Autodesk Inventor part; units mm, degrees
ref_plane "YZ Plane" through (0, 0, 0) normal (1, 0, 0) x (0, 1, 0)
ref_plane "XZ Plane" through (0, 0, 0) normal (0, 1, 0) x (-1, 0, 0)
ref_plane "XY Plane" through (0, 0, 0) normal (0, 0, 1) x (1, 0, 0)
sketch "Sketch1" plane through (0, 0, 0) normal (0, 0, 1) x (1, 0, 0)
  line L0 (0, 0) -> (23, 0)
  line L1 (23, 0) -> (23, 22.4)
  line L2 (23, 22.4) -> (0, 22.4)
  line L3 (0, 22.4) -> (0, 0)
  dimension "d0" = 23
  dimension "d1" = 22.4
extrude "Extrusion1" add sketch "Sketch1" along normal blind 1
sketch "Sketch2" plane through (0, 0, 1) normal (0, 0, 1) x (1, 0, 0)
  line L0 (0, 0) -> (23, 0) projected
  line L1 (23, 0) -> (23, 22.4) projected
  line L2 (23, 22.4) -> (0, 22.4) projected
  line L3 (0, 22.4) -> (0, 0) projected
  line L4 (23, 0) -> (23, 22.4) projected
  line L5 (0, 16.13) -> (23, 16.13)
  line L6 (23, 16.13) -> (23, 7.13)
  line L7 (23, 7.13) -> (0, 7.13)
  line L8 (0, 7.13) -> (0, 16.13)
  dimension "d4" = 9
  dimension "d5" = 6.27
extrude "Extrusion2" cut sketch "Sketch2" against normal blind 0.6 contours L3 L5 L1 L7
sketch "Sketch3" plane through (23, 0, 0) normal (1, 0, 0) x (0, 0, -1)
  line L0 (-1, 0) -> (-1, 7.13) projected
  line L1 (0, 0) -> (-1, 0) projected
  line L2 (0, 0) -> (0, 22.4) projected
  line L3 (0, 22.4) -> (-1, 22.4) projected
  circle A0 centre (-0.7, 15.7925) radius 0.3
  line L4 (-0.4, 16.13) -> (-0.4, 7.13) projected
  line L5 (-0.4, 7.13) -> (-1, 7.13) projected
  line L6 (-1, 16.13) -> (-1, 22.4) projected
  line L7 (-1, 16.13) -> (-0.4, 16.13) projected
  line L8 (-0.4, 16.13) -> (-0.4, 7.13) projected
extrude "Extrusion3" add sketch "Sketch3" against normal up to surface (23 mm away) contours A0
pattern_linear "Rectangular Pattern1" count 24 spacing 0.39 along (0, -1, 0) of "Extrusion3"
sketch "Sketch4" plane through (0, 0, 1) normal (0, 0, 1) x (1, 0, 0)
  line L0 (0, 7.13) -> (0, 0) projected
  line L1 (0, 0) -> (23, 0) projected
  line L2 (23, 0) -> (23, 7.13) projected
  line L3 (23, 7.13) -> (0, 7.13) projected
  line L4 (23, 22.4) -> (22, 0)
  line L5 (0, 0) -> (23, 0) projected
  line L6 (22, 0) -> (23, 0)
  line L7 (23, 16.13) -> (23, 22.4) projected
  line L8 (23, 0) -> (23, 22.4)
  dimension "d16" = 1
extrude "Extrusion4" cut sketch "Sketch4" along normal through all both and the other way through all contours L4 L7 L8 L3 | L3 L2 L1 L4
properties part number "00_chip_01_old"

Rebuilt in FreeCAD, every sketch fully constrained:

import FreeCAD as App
import Part
import Sketcher

V = App.Vector


def add_polygon(sketch, points):
    """Adds a closed chain of lines whose ends are joined by coincident constraints."""
    first, n = sketch.GeometryCount, len(points)
    for a, b in zip(points, points[1:] + points[:1]):
        sketch.addGeometry(Part.LineSegment(App.Vector(*a, 0), App.Vector(*b, 0)), False)
    for i in range(n):
        sketch.addConstraint(Sketcher.Constraint("Coincident", first + i, 2, first + (i + 1) % n, 1))

doc = App.newDocument("Part")
body = doc.addObject("PartDesign::Body", "Body")
body.AllowCompound = True

# Sketch on XY plane
sketch1 = doc.addObject("Sketcher::SketchObject", "Sketch")
body.addObject(sketch1)
sketch1.AttachmentSupport = (doc.XY_Plane, [""])
sketch1.MapMode = "FlatFace"
add_polygon(sketch1, [(0, 22), (0, 0), (23, 0), (23, 22)])  # lines 0-3
sketch1.addConstraint([
    Sketcher.Constraint("Vertical", 0),
    Sketcher.Constraint("Horizontal", 1),
    Sketcher.Constraint("Vertical", 2),
    Sketcher.Constraint("Horizontal", 3),
    Sketcher.Constraint("Coincident", 0, 2, -1, 1),
    Sketcher.Constraint("DistanceX", 1, 1, 1, 2, 23.0),
    Sketcher.Constraint("DistanceY", 0, 2, 0, 1, 22.4),
])
pad1 = doc.addObject("PartDesign::Pad", "Pad")
body.addObject(pad1)
pad1.Profile = sketch1
pad1.Length = 1

# Sketch on XY plane
sketch2 = doc.addObject("Sketcher::SketchObject", "Sketch001")
body.addObject(sketch2)
sketch2.AttachmentSupport = (doc.XY_Plane, [""])
sketch2.MapMode = "FlatFace"
sketch2.AttachmentOffset = App.Placement(V(0, 0, 1), App.Rotation())
add_polygon(sketch2, [(0, 16), (0, 7), (23, 7), (23, 16)])  # lines 0-3
sketch2.addConstraint([
    Sketcher.Constraint("Vertical", 0),
    Sketcher.Constraint("Horizontal", 1),
    Sketcher.Constraint("Vertical", 2),
    Sketcher.Constraint("Horizontal", 3),
    Sketcher.Constraint("PointOnObject", 0, 2, -2),
    Sketcher.Constraint("DistanceY", 0, 2, 0, 1, 9.0),
    Sketcher.Constraint("DistanceX", 1, 1, 1, 2, 23.0),
    Sketcher.Constraint("DistanceY", -1, 1, 0, 2, 7.13),
])
pocket1 = doc.addObject("PartDesign::Pocket", "Pocket")
body.addObject(pocket1)
pocket1.Profile = sketch2
pocket1.Length = 0.6

# Sketch on YZ plane
sketch3 = doc.addObject("Sketcher::SketchObject", "Sketch002")
body.addObject(sketch3)
sketch3.AttachmentSupport = (doc.YZ_Plane, [""])
sketch3.MapMode = "FlatFace"
sketch3.AttachmentOffset = App.Placement(V(0, 0, 23), App.Rotation())
sketch3.addGeometry(Part.Circle(V(15.79, 0.7, 0), V(0, 0, 1), 0.3), False)
sketch3.addConstraint([
    Sketcher.Constraint("Diameter", 0, 0.6),
    Sketcher.Constraint("DistanceY", -1, 1, 0, 3, 0.7),
    Sketcher.Constraint("DistanceX", -1, 1, 0, 3, 15.7925),
])
pad2 = doc.addObject("PartDesign::Pad", "Pad001")
body.addObject(pad2)
pad2.Profile = sketch3
pad2.Length = 23
pad2.Reversed = True
doc.recompute()

linearpattern = doc.addObject("PartDesign::LinearPattern", "LinearPattern")
body.addObject(linearpattern)
linearpattern.Originals = [pad2]
linearpattern.Direction = (doc.Y_Axis, [""])
linearpattern.Mode = "offset"
linearpattern.Offset = 0.39
linearpattern.Occurrences = 24
linearpattern.Reversed = True
body.Tip = linearpattern

# Sketch on XY plane
sketch4 = doc.addObject("Sketcher::SketchObject", "Sketch003")
body.addObject(sketch4)
sketch4.AttachmentSupport = (doc.XY_Plane, [""])
sketch4.MapMode = "FlatFace"
sketch4.AttachmentOffset = App.Placement(V(0, 0, 1), App.Rotation())
add_polygon(sketch4, [(23, 22.4), (22, 0), (23, 0)])  # lines 0-2
sketch4.addConstraint([
    Sketcher.Constraint("Horizontal", 1),
    Sketcher.Constraint("Vertical", 2),
    Sketcher.Constraint("PointOnObject", 0, 2, -1),
    Sketcher.Constraint("DistanceX", 1, 1, 1, 2, 1.0),
    Sketcher.Constraint("DistanceY", 2, 1, 2, 2, 22.4),
    Sketcher.Constraint("DistanceX", -1, 1, 0, 2, 22.0),
])
pocket2 = doc.addObject("PartDesign::Pocket", "Pocket001")
body.addObject(pocket2)
pocket2.Profile = sketch4
pocket2.Type = "ThroughAll"
pocket2.Midplane = True

doc.recompute()
